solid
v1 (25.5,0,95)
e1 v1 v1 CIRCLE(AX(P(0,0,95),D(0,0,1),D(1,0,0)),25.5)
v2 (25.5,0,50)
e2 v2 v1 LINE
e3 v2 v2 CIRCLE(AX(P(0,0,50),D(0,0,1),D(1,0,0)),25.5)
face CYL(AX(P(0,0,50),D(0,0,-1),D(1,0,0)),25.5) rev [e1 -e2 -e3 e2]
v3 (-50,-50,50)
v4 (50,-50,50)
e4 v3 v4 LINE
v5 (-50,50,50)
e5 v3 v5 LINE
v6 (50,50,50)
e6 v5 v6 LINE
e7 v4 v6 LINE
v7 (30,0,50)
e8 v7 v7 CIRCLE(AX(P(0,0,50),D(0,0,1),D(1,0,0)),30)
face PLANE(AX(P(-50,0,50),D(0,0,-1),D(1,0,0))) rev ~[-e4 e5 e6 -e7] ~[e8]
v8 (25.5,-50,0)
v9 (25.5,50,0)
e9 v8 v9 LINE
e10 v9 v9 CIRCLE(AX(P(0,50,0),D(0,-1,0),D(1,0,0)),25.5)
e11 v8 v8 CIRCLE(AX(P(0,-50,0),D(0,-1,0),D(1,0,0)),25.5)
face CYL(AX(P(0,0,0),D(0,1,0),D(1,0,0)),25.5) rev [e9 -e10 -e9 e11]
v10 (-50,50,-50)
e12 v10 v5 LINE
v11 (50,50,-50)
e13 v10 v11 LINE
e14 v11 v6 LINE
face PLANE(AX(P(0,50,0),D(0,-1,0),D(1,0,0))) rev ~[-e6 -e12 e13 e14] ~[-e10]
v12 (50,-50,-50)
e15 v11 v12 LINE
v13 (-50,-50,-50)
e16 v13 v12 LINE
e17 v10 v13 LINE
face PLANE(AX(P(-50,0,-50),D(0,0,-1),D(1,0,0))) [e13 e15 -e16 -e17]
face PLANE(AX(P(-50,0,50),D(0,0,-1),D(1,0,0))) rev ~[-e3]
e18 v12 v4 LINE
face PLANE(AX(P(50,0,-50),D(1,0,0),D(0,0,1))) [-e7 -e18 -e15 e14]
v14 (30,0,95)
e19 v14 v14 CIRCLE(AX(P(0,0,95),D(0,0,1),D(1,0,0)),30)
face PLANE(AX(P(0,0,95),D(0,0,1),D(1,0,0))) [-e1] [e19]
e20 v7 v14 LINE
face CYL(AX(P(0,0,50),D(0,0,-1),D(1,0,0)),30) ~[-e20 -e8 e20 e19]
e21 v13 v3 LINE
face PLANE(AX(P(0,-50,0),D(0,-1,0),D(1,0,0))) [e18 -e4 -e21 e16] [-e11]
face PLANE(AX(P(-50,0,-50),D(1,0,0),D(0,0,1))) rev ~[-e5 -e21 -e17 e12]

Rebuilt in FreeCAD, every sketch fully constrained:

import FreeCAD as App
import Part
import Sketcher
from FreeCAD import Vector
Q = App.Units.Quantity


def add_polygon(sketch, points):
    """Adds a closed chain of lines whose ends are joined by coincident constraints."""
    first, n = sketch.GeometryCount, len(points)
    for a, b in zip(points, points[1:] + points[:1]):
        sketch.addGeometry(Part.LineSegment(App.Vector(*a, 0), App.Vector(*b, 0)), False)
    for i in range(n):
        sketch.addConstraint(Sketcher.Constraint("Coincident", first + i, 2, first + (i + 1) % n, 1))

doc = App.newDocument("Part")
params = doc.addObject("Spreadsheet::Sheet", "Params")
for row, (alias, value) in enumerate([
    ("sketch1_diameter", "51 mm"),
    ("sketch1_width", "100 mm"),
    ("pad1_length", "100 mm"),
    ("sketch2_diameter", "60 mm"),
    ("sketch2_diameter2", "51 mm"),
    ("pad2_length", "45 mm"),
], start=1):
    params.set(f"A{row}", alias)
    params.set(f"B{row}", "=" + value)
    params.setAlias(f"B{row}", alias)

body = doc.addObject("PartDesign::Body", "Body")

# Sketch on XZ plane
sketch1 = body.newObject("Sketcher::SketchObject", "Sketch")
sketch1.AttachmentSupport = (doc.getObject("XZ_Plane"), [""])
sketch1.MapMode = "FlatFace"
add_polygon(sketch1, [(-50, 50), (-50, -50), (50, -50), (50, 50)])  # lines 0-3
sketch1.addGeometry(Part.Circle(Vector(0, 0, 0), Vector(0, 0, 1), 25.5), False)  # 4
sketch1.addConstraint([
    Sketcher.Constraint("Vertical", 0),
    Sketcher.Constraint("Horizontal", 1),
    Sketcher.Constraint("Vertical", 2),
    Sketcher.Constraint("Horizontal", 3),
    Sketcher.Constraint("Coincident", 4, 3, -1, 1),
    Sketcher.Constraint("Symmetric", 0, 2, 2, 2, -1, 1),
    Sketcher.Constraint("Equal", 3, 0),
    Sketcher.Constraint("Diameter", 4, Q("51 mm")),
    Sketcher.Constraint("DistanceX", 1, 1, 1, 2, Q("100 mm")),
])
sketch1.setExpression("Constraints[11]", "Params.sketch1_diameter")
sketch1.setExpression("Constraints[12]", "Params.sketch1_width")
pad1 = body.newObject("PartDesign::Pad", "Pad")
pad1.Profile = sketch1
pad1.setExpression("Length", "Params.pad1_length")
pad1.Midplane = True

# Sketch on XY plane
sketch2 = body.newObject("Sketcher::SketchObject", "Sketch001")
sketch2.AttachmentSupport = (doc.getObject("XY_Plane"), [""])
sketch2.MapMode = "FlatFace"
sketch2.AttachmentOffset = App.Placement(Vector(0, 0, 50), App.Rotation())
sketch2.addGeometry([
    Part.Circle(Vector(0, 0, 0), Vector(0, 0, 1), 30),
    Part.Circle(Vector(0, 0, 0), Vector(0, 0, 1), 25.5),
], False)
sketch2.addConstraint([
    Sketcher.Constraint("Coincident", 0, 3, -1, 1),
    Sketcher.Constraint("Coincident", 1, 3, -1, 1),
    Sketcher.Constraint("Diameter", 0, Q("60 mm")),
    Sketcher.Constraint("Diameter", 1, Q("51 mm")),
])
sketch2.setExpression("Constraints[2]", "Params.sketch2_diameter")
sketch2.setExpression("Constraints[3]", "Params.sketch2_diameter2")
pad2 = body.newObject("PartDesign::Pad", "Pad001")
pad2.Profile = sketch2
pad2.setExpression("Length", "Params.pad2_length")

doc.recompute()
